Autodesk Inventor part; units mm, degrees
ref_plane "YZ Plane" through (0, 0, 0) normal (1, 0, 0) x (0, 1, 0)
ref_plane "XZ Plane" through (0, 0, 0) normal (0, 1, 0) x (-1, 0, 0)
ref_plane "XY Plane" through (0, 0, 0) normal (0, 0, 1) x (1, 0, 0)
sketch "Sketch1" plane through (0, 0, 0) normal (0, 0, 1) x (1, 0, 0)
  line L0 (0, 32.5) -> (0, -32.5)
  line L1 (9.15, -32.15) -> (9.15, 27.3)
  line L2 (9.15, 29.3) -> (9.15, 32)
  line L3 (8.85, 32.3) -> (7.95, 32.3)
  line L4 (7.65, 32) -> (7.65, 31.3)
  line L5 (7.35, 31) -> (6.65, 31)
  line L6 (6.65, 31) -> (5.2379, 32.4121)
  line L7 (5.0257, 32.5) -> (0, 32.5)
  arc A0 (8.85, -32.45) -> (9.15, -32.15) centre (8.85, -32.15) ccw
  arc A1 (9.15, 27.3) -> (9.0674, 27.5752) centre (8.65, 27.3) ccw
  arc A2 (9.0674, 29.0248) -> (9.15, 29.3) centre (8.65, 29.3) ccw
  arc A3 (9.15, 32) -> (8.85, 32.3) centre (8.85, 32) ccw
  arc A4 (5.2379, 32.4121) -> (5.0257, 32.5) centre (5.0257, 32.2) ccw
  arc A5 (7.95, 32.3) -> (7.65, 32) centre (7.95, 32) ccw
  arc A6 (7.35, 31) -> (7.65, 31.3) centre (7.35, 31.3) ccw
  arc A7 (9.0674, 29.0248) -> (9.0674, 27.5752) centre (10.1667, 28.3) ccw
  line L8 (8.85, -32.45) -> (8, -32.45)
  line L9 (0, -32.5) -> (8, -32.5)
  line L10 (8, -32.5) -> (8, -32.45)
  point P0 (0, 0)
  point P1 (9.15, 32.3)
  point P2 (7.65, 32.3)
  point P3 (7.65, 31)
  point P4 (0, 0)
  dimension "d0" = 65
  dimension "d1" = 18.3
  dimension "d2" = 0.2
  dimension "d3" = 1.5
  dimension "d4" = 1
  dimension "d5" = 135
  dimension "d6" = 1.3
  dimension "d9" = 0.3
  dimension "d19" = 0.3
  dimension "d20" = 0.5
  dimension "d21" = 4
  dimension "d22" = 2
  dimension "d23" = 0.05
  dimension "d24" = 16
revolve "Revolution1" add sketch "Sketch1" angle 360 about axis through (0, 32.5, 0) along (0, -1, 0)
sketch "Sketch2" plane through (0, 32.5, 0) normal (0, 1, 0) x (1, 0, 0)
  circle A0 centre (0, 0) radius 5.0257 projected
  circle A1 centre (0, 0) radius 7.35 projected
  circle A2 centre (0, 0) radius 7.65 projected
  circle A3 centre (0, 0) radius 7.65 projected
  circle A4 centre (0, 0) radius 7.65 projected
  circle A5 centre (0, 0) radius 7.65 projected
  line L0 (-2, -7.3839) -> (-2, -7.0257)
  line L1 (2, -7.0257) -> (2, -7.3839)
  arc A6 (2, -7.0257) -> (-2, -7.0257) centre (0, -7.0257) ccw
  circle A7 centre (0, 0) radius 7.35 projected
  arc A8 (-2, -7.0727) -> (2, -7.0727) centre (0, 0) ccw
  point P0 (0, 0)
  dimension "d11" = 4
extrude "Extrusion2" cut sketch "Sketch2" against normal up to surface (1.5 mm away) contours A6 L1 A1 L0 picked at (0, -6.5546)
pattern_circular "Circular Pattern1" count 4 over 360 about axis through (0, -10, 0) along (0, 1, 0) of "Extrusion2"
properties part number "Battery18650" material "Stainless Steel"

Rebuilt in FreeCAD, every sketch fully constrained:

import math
import FreeCAD as App
import Part
import Sketcher
from FreeCAD import Vector
Q = App.Units.Quantity

doc = App.newDocument("Part")
body = doc.addObject("PartDesign::Body", "Body")

# Sketch on XY plane
sketch1 = body.newObject("Sketcher::SketchObject", "Sketch")
sketch1.AttachmentSupport = (doc.getObject("XY_Plane"), [""])
sketch1.MapMode = "FlatFace"
sketch1.addGeometry([
    Part.LineSegment(Vector(5.026, 32.5, 0), Vector(0, 32.5, 0)),  # 0
    Part.LineSegment(Vector(0, 32.5, 0), Vector(0, -32.5, 0)),  # 1
    Part.LineSegment(Vector(0, -32.5, 0), Vector(8, -32.5, 0)),  # 2
    Part.LineSegment(Vector(8, -32.5, 0), Vector(8, -32.45, 0)),  # 3
    Part.LineSegment(Vector(8, -32.45, 0), Vector(8.85, -32.45, 0)),  # 4
    Part.ArcOfCircle(Part.Circle(Vector(8.85, -32.15, 0), Vector(0, 0, 1), 0.3), math.radians(-90), math.radians(0)),  # 5
    Part.LineSegment(Vector(9.15, -32.15, 0), Vector(9.15, 27.3, 0)),  # 6
    Part.ArcOfCircle(Part.Circle(Vector(8.65, 27.3, 0), Vector(0, 0, 1), 0.5), math.radians(0), math.radians(33)),  # 7
    Part.ArcOfCircle(Part.Circle(Vector(10.167, 28.3, 0), Vector(0, 0, 1), 1.317), math.radians(147), math.radians(213)),  # 8
    Part.ArcOfCircle(Part.Circle(Vector(8.65, 29.3, 0), Vector(0, 0, 1), 0.5), math.radians(-33), math.radians(0)),  # 9
    Part.LineSegment(Vector(9.15, 29.3, 0), Vector(9.15, 32, 0)),  # 10
    Part.ArcOfCircle(Part.Circle(Vector(8.85, 32, 0), Vector(0, 0, 1), 0.3), math.radians(0), math.radians(90)),  # 11
    Part.LineSegment(Vector(8.85, 32.3, 0), Vector(7.95, 32.3, 0)),  # 12
    Part.ArcOfCircle(Part.Circle(Vector(7.95, 32, 0), Vector(0, 0, 1), 0.3), math.radians(90), math.radians(180)),  # 13
    Part.LineSegment(Vector(7.65, 32, 0), Vector(7.65, 31.3, 0)),  # 14
    Part.ArcOfCircle(Part.Circle(Vector(7.35, 31.3, 0), Vector(0, 0, 1), 0.3), math.radians(-90), math.radians(0)),  # 15
    Part.LineSegment(Vector(7.35, 31, 0), Vector(6.65, 31, 0)),  # 16
    Part.LineSegment(Vector(6.65, 31, 0), Vector(5.238, 32.412, 0)),  # 17
    Part.ArcOfCircle(Part.Circle(Vector(5.026, 32.2, 0), Vector(0, 0, 1), 0.3), math.radians(45), math.radians(90)),  # 18
], False)
sketch1.addConstraint([
    Sketcher.Constraint("Coincident", 0, 2, 1, 1),
    Sketcher.Constraint("Coincident", 1, 2, 2, 1),
    Sketcher.Constraint("Coincident", 2, 2, 3, 1),
    Sketcher.Constraint("Coincident", 3, 2, 4, 1),
    Sketcher.Constraint("Tangent", 4, 2, 5, 1),
    Sketcher.Constraint("Tangent", 5, 2, 6, 1),
    Sketcher.Constraint("Tangent", 6, 2, 7, 1),
    Sketcher.Constraint("Tangent", 7, 2, 8, 2),
    Sketcher.Constraint("Tangent", 8, 1, 9, 1),
    Sketcher.Constraint("Tangent", 9, 2, 10, 1),
    Sketcher.Constraint("Tangent", 10, 2, 11, 1),
    Sketcher.Constraint("Tangent", 11, 2, 12, 1),
    Sketcher.Constraint("Tangent", 12, 2, 13, 1),
    Sketcher.Constraint("Tangent", 13, 2, 14, 1),
    Sketcher.Constraint("Tangent", 14, 2, 15, 2),
    Sketcher.Constraint("Tangent", 15, 1, 16, 1),
    Sketcher.Constraint("Coincident", 16, 2, 17, 1),
    Sketcher.Constraint("Tangent", 17, 2, 18, 1),
    Sketcher.Constraint("Tangent", 18, 2, 0, 1),
    Sketcher.Constraint("Horizontal", 0),
    Sketcher.Constraint("Vertical", 1),
    Sketcher.Constraint("Horizontal", 2),
    Sketcher.Constraint("Vertical", 3),
    Sketcher.Constraint("Horizontal", 4),
    Sketcher.Constraint("Vertical", 6),
    Sketcher.Constraint("Vertical", 10),
    Sketcher.Constraint("Horizontal", 12),
    Sketcher.Constraint("Vertical", 14),
    Sketcher.Constraint("Horizontal", 16),
    Sketcher.Constraint("Equal", 7, 9),
    Sketcher.Constraint("Equal", 5, 11),
    Sketcher.Constraint("Equal", 11, 13),
    Sketcher.Constraint("Equal", 13, 15),
    Sketcher.Constraint("Equal", 15, 18),
    Sketcher.Constraint("Symmetric", 0, 2, 1, 2, -1, 1),
    Sketcher.Constraint("Vertical", 7, 3, 9, 3),
    Sketcher.Constraint("Equal", 16, 14),
    Sketcher.Constraint("Radius", 5, Q("0.3 mm")),
    Sketcher.Constraint("Radius", 7, Q("0.5 mm")),
    Sketcher.Constraint("DistanceY", 1, 2, 1, 1, Q("65 mm")),
    Sketcher.Constraint("Angle", 17, Q("135 deg")),
    Sketcher.Constraint("DistanceY", 7, 3, 8, 3, Q("1 mm")),
    Sketcher.Constraint("DistanceY", 9, 3, 15, 3, Q("2 mm")),
    Sketcher.Constraint("DistanceY", 15, 3, 11, 2, Q("1 mm")),
    Sketcher.Constraint("DistanceY", 3, 1, 3, 2, Q("0.05 mm")),
    Sketcher.Constraint("DistanceX", 15, 3, 11, 3, Q("1.5 mm")),
    Sketcher.Constraint("DistanceY", 13, 3, 18, 3, Q("0.2 mm")),
    Sketcher.Constraint("DistanceX", 2, 1, 2, 2, Q("8 mm")),
    Sketcher.Constraint("DistanceX", 4, 1, 4, 2, Q("0.85 mm")),
    Sketcher.Constraint("Radius", 8, Q("1.3167 mm")),
])
revolution = body.newObject("PartDesign::Revolution", "Revolution")
revolution.Profile = sketch1
revolution.ReferenceAxis = (sketch1, ["V_Axis"])
revolution.Angle = 360

# Sketch on XZ plane
sketch2 = body.newObject("Sketcher::SketchObject", "Sketch001")
sketch2.AttachmentSupport = (doc.getObject("XZ_Plane"), [""])
sketch2.MapMode = "FlatFace"
sketch2.AttachmentOffset = App.Placement(Vector(0, 0, -32.5), App.Rotation())
sketch2.addGeometry([
    Part.ArcOfCircle(Part.Circle(Vector(0, 7.026, 0), Vector(0, 0, 1), 2), math.radians(180), math.radians(360)),
    Part.LineSegment(Vector(-2, 7.026, 0), Vector(-2, 7.073, 0)),
    Part.ArcOfCircle(Part.Circle(Vector(0, 0, 0), Vector(0, 0, 1), 7.35), math.radians(74), math.radians(106)),
    Part.LineSegment(Vector(2, 7.073, 0), Vector(2, 7.026, 0)),
], False)
sketch2.addConstraint([
    Sketcher.Constraint("Tangent", 0, 1, 1, 1),
    Sketcher.Constraint("Coincident", 1, 2, 2, 2),
    Sketcher.Constraint("Coincident", 2, 1, 3, 1),
    Sketcher.Constraint("Tangent", 3, 2, 0, 2),
    Sketcher.Constraint("Vertical", 1),
    Sketcher.Constraint("Vertical", 3),
    Sketcher.Constraint("Coincident", 2, 3, -1, 1),
    Sketcher.Constraint("PointOnObject", 0, 3, -2),
    Sketcher.Constraint("Radius", 0, Q("2 mm")),
    Sketcher.Constraint("Radius", 2, Q("7.35 mm")),
    Sketcher.Constraint("DistanceY", 1, 1, 1, 2, Q("0.047 mm")),
])
pocket1 = body.newObject("PartDesign::Pocket", "Pocket")
pocket1.Profile = sketch2
pocket1.Length = 1.5
pocket1.Reversed = True
doc.recompute()

polarpattern = body.newObject("PartDesign::PolarPattern", "PolarPattern")
polarpattern.Originals = [pocket1]
polarpattern.Axis = (doc.getObject("Y_Axis"), [""])
polarpattern.Angle = 360
polarpattern.Occurrences = 4
body.Tip = polarpattern

doc.recompute()
